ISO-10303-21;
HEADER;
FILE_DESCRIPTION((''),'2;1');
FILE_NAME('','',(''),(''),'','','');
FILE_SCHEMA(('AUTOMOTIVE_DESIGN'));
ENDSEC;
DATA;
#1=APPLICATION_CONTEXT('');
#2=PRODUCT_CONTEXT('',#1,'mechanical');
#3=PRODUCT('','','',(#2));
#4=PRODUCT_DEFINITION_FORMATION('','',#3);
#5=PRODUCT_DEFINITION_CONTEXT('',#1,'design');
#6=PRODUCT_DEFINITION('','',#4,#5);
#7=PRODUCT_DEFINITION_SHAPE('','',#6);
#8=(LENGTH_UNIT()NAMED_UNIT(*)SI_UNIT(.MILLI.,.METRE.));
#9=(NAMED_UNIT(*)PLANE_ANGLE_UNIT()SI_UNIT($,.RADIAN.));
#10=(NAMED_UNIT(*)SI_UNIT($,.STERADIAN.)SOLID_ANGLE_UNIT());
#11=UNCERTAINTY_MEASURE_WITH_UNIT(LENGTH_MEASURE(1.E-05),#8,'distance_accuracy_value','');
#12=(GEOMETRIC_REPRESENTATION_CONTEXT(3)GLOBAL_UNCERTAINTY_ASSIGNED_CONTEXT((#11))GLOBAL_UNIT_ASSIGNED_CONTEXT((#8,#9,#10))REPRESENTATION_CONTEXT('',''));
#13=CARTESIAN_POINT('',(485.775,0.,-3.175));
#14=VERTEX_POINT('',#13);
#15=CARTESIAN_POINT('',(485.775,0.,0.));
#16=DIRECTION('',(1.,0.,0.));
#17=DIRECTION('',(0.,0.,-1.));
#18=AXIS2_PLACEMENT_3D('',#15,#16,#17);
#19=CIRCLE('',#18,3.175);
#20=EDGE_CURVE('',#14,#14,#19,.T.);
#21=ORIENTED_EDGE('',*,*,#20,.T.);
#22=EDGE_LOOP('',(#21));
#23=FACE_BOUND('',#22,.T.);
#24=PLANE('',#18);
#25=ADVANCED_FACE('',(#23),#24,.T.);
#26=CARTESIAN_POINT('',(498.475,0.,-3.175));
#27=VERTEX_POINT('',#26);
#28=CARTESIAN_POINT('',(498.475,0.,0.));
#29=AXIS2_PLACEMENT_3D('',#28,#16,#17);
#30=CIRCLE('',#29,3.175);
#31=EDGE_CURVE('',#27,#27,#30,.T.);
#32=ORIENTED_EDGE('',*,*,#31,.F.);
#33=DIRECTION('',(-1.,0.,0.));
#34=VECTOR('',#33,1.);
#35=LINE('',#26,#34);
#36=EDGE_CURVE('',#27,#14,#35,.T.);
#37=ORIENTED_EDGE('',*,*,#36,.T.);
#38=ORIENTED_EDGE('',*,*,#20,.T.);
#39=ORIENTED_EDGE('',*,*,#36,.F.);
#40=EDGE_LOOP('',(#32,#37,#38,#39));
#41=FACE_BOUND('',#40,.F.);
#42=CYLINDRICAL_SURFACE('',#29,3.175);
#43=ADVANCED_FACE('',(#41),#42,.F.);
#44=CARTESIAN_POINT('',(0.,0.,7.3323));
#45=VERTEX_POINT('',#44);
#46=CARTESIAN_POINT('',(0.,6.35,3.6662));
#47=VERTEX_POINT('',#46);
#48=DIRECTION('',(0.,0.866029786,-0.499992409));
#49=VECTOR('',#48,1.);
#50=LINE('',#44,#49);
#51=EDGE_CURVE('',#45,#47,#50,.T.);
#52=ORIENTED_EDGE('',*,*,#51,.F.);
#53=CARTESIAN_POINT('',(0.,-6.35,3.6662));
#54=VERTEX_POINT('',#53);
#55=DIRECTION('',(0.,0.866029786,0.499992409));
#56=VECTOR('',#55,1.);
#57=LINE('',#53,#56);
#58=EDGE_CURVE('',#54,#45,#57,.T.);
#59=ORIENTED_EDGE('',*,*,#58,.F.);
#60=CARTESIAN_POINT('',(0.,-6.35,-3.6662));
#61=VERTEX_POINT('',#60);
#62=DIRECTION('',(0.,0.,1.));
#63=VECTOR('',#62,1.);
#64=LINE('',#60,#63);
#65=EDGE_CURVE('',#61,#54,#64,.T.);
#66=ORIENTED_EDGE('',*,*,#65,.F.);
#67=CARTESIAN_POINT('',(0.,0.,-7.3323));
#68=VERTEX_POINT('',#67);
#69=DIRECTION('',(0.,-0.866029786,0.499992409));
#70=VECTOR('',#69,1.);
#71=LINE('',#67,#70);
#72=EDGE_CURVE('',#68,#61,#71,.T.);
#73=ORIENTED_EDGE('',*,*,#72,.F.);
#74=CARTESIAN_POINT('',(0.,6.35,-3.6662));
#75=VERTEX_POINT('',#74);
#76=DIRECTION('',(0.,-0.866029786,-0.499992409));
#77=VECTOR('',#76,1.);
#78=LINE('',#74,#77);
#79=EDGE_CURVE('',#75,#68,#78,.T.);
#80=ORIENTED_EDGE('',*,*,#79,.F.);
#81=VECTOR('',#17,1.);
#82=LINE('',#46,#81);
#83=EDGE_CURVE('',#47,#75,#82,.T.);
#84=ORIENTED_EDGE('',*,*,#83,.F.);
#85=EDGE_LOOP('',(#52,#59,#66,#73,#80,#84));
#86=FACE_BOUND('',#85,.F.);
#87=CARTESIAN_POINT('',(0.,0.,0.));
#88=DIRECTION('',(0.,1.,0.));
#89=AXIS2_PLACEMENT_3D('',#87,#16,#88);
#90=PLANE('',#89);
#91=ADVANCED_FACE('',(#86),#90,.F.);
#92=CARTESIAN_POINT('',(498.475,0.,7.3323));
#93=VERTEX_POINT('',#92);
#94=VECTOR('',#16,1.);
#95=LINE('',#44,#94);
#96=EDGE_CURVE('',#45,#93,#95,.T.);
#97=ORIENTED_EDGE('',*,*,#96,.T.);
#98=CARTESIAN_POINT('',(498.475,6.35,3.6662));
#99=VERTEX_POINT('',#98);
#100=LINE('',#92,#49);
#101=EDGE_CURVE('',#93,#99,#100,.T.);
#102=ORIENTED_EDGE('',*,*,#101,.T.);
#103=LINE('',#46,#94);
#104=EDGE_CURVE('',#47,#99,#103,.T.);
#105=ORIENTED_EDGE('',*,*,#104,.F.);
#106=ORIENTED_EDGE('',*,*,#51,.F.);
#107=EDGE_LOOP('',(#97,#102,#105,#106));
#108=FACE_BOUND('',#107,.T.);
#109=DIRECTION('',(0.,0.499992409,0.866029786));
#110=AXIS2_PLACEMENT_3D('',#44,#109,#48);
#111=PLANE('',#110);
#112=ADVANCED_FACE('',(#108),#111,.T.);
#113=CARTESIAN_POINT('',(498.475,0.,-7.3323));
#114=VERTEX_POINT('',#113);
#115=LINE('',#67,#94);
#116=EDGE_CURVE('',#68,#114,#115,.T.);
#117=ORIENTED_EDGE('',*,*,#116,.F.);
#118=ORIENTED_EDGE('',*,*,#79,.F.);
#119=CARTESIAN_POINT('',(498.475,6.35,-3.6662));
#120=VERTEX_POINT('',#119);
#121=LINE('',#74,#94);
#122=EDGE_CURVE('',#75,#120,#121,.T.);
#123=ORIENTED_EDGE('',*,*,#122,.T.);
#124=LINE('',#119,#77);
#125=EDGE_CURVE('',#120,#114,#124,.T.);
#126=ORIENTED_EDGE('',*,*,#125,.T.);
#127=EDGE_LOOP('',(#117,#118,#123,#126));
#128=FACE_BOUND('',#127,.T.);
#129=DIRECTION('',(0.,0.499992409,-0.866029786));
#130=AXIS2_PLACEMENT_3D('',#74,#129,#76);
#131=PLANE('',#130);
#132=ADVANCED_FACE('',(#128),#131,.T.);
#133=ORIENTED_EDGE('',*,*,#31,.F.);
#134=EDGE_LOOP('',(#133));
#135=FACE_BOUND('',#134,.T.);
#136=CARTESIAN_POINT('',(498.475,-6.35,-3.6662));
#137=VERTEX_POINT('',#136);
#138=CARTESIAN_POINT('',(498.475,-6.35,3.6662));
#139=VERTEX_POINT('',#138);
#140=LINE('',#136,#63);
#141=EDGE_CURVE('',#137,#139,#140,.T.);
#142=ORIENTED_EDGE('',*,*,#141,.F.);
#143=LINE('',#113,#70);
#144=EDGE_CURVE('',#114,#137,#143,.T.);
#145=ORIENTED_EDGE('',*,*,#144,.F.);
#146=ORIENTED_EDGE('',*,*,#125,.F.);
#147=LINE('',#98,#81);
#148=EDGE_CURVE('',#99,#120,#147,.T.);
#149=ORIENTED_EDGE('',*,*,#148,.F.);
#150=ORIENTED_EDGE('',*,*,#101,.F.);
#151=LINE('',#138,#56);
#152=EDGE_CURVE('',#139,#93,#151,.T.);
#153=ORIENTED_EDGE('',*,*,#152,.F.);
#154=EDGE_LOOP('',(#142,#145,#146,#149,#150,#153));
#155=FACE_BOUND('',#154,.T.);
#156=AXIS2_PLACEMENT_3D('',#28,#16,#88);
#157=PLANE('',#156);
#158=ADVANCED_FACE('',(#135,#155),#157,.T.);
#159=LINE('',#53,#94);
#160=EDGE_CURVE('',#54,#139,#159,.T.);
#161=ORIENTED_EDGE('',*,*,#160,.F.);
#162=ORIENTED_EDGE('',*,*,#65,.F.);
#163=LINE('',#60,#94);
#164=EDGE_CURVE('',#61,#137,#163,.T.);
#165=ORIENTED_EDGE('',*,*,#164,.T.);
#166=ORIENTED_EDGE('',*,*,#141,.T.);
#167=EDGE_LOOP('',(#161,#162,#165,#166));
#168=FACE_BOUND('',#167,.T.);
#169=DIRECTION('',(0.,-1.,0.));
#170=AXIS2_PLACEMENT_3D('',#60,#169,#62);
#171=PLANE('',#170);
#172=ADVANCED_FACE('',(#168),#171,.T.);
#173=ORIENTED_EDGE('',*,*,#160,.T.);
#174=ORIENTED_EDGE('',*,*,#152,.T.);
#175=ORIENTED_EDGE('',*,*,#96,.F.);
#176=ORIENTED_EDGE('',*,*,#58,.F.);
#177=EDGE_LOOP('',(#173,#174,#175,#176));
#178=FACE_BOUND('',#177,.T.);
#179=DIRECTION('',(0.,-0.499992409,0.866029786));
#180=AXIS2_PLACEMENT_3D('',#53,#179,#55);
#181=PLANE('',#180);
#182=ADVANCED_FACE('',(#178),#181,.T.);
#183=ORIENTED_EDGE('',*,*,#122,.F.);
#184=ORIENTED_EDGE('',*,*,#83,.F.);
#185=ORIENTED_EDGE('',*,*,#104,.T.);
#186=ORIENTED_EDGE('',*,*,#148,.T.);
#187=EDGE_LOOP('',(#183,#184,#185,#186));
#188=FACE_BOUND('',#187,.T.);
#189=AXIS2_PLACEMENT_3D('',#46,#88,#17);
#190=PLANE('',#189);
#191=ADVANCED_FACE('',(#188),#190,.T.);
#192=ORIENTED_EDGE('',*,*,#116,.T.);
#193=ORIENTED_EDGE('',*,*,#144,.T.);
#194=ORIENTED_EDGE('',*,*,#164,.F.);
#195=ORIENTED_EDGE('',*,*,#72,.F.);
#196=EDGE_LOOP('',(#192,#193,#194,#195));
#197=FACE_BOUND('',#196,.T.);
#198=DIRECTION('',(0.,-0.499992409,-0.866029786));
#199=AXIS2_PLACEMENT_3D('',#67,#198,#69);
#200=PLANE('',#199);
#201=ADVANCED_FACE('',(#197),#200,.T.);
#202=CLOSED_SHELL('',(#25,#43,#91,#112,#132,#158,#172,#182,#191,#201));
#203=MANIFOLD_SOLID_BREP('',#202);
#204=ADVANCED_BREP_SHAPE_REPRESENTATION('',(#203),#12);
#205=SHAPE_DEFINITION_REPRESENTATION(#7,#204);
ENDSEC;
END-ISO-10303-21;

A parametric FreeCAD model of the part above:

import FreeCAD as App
import Part
import Sketcher

V = App.Vector
Q = App.Units.Quantity

doc = App.newDocument("Part")
body = doc.addObject("PartDesign::Body", "Body")

# Sketch on YZ plane
sketch1 = body.newObject("Sketcher::SketchObject", "Sketch")
sketch1.AttachmentSupport = (doc.getObject("YZ_Plane"), [""])
sketch1.MapMode = "FlatFace"
sketch1.addGeometry([
    Part.LineSegment(V(6, -4, 0), V(6, 4, 0)),  # 0
    Part.LineSegment(V(6, 4, 0), V(0, 7, 0)),  # 1
    Part.LineSegment(V(0, 7, 0), V(-6, 4, 0)),  # 2
    Part.LineSegment(V(-6, 4, 0), V(-6, -4, 0)),  # 3
    Part.LineSegment(V(-6, -4, 0), V(0, -7, 0)),  # 4
    Part.LineSegment(V(0, -7, 0), V(6, -4, 0)),  # 5
], False)
sketch1.addConstraint([
    Sketcher.Constraint("Coincident", 0, 2, 1, 1),
    Sketcher.Constraint("Coincident", 1, 2, 2, 1),
    Sketcher.Constraint("Coincident", 2, 2, 3, 1),
    Sketcher.Constraint("Coincident", 3, 2, 4, 1),
    Sketcher.Constraint("Coincident", 4, 2, 5, 1),
    Sketcher.Constraint("Coincident", 5, 2, 0, 1),
    Sketcher.Constraint("Vertical", 0),
    Sketcher.Constraint("Vertical", 3),
    Sketcher.Constraint("Symmetric", 0, 2, 3, 2, -1, 1),
    Sketcher.Constraint("Symmetric", 1, 2, 4, 2, -1, 1),
    Sketcher.Constraint("PointOnObject", 1, 2, -2),
    Sketcher.Constraint("Parallel", 2, 5),
    Sketcher.Constraint("Horizontal", 0, 2, 2, 2),
    Sketcher.Constraint("DistanceX", 2, 2, 0, 2, Q("0.5 in")),
    Sketcher.Constraint("Angle", 1, Q("150.0005 deg")),
    Sketcher.Constraint("DistanceY", 3, 2, 1, 2, Q("0.433 in")),
])
pad1 = body.newObject("PartDesign::Pad", "Pad")
pad1.Profile = sketch1
pad1.Length = Q("19.625 in")

# Sketch on YZ plane
sketch2 = body.newObject("Sketcher::SketchObject", "Sketch001")
sketch2.AttachmentSupport = (doc.getObject("YZ_Plane"), [""])
sketch2.MapMode = "FlatFace"
sketch2.AttachmentOffset = App.Placement(V(0, 0, 19.625 * 25.4), App.Rotation())
sketch2.addGeometry(Part.Circle(V(0, 0, 0), V(0, 0, 1), 3.2), False)
sketch2.addConstraint([
    Sketcher.Constraint("Coincident", 0, 3, -1, 1),
    Sketcher.Constraint("Diameter", 0, Q("0.25 in")),
])
pocket1 = body.newObject("PartDesign::Pocket", "Pocket")
pocket1.Profile = sketch2
pocket1.Length = Q("0.5 in")

doc.recompute()
